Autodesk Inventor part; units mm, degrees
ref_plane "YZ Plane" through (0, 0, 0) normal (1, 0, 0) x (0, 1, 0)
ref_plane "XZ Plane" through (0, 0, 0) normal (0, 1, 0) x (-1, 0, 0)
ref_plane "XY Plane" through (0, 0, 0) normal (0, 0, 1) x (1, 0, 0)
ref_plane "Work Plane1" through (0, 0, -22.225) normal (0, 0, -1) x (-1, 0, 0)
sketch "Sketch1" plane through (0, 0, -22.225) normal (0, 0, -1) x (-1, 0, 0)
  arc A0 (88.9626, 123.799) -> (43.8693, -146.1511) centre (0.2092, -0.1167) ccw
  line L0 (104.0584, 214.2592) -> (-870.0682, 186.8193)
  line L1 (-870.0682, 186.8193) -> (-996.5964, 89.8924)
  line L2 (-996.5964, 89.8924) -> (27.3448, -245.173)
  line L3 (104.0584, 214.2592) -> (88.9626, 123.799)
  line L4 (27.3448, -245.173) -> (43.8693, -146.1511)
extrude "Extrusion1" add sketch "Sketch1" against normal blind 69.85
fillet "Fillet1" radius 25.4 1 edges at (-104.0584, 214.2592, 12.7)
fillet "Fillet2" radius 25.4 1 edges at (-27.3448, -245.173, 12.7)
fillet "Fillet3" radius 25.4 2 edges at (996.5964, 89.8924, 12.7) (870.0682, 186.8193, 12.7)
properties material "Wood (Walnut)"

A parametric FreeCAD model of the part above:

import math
import FreeCAD as App
import Part
import Sketcher
from FreeCAD import Vector
Q = App.Units.Quantity


def edges_at(feature, points):
    """Names of the edges that pass closest to the given points."""
    edges = feature.Shape.Edges
    near = lambda p: min(range(len(edges)), key=lambda i: edges[i].distToShape(Part.Vertex(*p))[0])
    return sorted({f"Edge{near(p) + 1}" for p in points})

doc = App.newDocument("Part")
params = doc.addObject("Spreadsheet::Sheet", "Params")
for row, (alias, value) in enumerate([
    ("pad1_length", "2.75 in"),
    ("fillet_radius", "1 in"),
    ("fillet2_radius", "1 in"),
    ("fillet3_radius", "1 in"),
], start=1):
    params.set(f"A{row}", alias)
    params.set(f"B{row}", "=" + value)
    params.setAlias(f"B{row}", alias)

body = doc.addObject("PartDesign::Body", "Body")

# Sketch on XY plane
sketch1 = body.newObject("Sketcher::SketchObject", "Sketch")
sketch1.AttachmentSupport = (doc.getObject("XY_Plane"), [""])
sketch1.MapMode = "FlatFace"
sketch1.AttachmentOffset = App.Placement(Vector(0, 0, -0.875 * 25.4), App.Rotation())
sketch1.addGeometry([
    Part.ArcOfCircle(Part.Circle(Vector(0, 0, 0), Vector(0, 0, 1), 152), math.radians(-107), math.radians(126)),  # 0
    Part.LineSegment(Vector(-89, 124, 0), Vector(-104, 214, 0)),  # 1
    Part.LineSegment(Vector(-104, 214, 0), Vector(870, 187, 0)),  # 2
    Part.LineSegment(Vector(870, 187, 0), Vector(997, 90, 0)),  # 3
    Part.LineSegment(Vector(997, 90, 0), Vector(-27, -245, 0)),  # 4
    Part.LineSegment(Vector(-27, -245, 0), Vector(-44, -146, 0)),  # 5
], False)
sketch1.addConstraint([
    Sketcher.Constraint("Coincident", 0, 2, 1, 1),
    Sketcher.Constraint("Coincident", 1, 2, 2, 1),
    Sketcher.Constraint("Coincident", 2, 2, 3, 1),
    Sketcher.Constraint("Coincident", 3, 2, 4, 1),
    Sketcher.Constraint("Coincident", 4, 2, 5, 1),
    Sketcher.Constraint("Coincident", 5, 2, 0, 1),
    Sketcher.Constraint("Parallel", 1, 5),
    Sketcher.Constraint("Angle", 4, Q("-161.8803 deg")),
    Sketcher.Constraint("Radius", 0, 152.4213),
    Sketcher.Constraint("DistanceY", 0, 3, 1, 2, Q("8.44 in")),
    Sketcher.Constraint("Distance", 4, Q("42.4161 in")),
    Sketcher.Constraint("Distance", 5, Q("3.9524 in")),
    Sketcher.Constraint("DistanceY", 0, 3, -1, 1, Q("0.0046 in")),
    Sketcher.Constraint("DistanceY", -1, 1, 2, 2, Q("7.3551 in")),
    Sketcher.Constraint("DistanceX", 0, 3, 2, 2, Q("34.2629 in")),
    Sketcher.Constraint("DistanceY", 3, 2, 0, 2, Q("1.3349 in")),
    Sketcher.Constraint("DistanceX", 0, 2, 4, 2, Q("2.4259 in")),
    Sketcher.Constraint("DistanceY", 4, 2, 5, 2, Q("3.8985 in")),
    Sketcher.Constraint("DistanceX", 0, 3, -1, 1, 0.2092),
])
pad1 = body.newObject("PartDesign::Pad", "Pad")
pad1.Profile = sketch1
pad1.setExpression("Length", "Params.pad1_length")
doc.recompute()

fillet = body.newObject("PartDesign::Fillet", "Fillet")
fillet.Base = (pad1, edges_at(pad1, [(-104.058, 214.259, 12.7)]))
fillet.setExpression("Radius", "Params.fillet_radius")
doc.recompute()

fillet2 = body.newObject("PartDesign::Fillet", "Fillet001")
fillet2.Base = (fillet, edges_at(fillet, [(-27.345, -245.173, 12.7)]))
fillet2.setExpression("Radius", "Params.fillet2_radius")
doc.recompute()

fillet3 = body.newObject("PartDesign::Fillet", "Fillet002")
fillet3.Base = (fillet2, edges_at(fillet2, [(996.596, 89.892, 12.7), (870.068, 186.819, 12.7)]))
fillet3.setExpression("Radius", "Params.fillet3_radius")

doc.recompute()
